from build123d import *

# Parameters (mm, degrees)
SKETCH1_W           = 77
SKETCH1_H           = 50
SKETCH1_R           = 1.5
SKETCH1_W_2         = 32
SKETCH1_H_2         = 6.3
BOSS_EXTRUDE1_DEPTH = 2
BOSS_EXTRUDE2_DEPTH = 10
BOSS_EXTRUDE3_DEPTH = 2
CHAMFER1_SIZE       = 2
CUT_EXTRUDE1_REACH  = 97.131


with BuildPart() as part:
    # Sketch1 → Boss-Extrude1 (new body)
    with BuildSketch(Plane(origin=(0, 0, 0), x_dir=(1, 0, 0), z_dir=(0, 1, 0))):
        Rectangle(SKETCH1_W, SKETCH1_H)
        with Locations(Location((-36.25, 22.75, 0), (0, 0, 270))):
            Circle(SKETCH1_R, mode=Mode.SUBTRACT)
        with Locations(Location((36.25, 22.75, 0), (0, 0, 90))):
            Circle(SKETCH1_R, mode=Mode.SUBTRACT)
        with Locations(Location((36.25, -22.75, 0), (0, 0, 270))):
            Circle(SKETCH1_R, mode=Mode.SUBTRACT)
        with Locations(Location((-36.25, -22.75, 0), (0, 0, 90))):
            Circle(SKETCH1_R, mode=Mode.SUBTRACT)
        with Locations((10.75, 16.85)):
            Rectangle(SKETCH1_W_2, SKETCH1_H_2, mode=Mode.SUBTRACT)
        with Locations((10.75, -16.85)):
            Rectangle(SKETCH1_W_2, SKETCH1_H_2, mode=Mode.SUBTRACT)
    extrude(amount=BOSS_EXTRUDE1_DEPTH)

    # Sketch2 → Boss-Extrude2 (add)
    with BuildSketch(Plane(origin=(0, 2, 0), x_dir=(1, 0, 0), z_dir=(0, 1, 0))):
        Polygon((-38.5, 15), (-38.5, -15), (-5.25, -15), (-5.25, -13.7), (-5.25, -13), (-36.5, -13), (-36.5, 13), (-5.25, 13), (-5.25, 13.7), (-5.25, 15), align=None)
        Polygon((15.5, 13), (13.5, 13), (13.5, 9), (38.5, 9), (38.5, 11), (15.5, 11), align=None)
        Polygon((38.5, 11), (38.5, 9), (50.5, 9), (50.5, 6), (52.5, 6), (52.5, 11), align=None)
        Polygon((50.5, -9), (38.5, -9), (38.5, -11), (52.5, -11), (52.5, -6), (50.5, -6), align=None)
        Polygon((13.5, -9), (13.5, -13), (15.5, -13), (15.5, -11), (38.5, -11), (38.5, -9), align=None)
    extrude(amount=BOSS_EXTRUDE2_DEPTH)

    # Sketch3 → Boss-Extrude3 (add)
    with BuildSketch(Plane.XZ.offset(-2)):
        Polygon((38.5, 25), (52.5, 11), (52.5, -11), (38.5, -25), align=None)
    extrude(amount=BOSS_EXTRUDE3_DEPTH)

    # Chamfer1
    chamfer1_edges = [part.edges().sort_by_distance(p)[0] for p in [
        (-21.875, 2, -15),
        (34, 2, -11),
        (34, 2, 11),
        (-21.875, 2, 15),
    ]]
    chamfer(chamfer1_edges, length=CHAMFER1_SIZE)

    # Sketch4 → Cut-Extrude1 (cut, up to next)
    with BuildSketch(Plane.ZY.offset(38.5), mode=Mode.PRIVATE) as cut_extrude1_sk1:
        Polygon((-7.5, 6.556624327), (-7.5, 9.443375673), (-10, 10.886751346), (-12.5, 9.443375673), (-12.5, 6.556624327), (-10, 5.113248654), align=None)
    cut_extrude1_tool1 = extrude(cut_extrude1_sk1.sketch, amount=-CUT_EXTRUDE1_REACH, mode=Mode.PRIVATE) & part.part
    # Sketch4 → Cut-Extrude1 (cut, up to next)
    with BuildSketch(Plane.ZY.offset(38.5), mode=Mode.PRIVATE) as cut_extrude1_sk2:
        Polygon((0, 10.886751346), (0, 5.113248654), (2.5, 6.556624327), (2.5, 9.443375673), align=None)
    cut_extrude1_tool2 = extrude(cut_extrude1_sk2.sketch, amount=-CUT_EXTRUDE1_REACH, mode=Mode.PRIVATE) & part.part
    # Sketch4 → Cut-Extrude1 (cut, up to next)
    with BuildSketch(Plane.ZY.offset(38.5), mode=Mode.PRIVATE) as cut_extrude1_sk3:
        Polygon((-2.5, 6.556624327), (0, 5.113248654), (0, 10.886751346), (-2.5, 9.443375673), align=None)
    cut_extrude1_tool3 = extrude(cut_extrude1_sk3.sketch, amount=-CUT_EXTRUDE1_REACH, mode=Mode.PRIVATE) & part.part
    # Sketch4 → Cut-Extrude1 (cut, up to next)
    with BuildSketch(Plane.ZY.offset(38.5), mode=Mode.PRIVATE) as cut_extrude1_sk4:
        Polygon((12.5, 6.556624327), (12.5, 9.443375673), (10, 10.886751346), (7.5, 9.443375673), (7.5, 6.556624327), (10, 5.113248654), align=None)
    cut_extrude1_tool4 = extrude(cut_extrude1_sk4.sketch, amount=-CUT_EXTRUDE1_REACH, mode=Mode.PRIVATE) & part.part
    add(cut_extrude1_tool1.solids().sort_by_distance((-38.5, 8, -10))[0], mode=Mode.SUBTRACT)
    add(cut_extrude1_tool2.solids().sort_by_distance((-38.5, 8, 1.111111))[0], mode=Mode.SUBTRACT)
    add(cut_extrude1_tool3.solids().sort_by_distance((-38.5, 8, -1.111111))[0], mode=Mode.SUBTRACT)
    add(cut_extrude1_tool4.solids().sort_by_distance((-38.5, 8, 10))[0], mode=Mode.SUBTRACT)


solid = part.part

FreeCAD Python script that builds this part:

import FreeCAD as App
import Part
import Sketcher
from FreeCAD import Vector
Q = App.Units.Quantity


def edges_at(feature, points):
    """Names of the edges that pass closest to the given points."""
    edges = feature.Shape.Edges
    near = lambda p: min(range(len(edges)), key=lambda i: edges[i].distToShape(Part.Vertex(*p))[0])
    return sorted({f"Edge{near(p) + 1}" for p in points})

doc = App.newDocument("Part")
body = doc.addObject("PartDesign::Body", "Body")

sketch1 = body.newObject("Sketcher::SketchObject", "Sketch")
sketch1.AttachmentSupport = (doc.getObject("XZ_Plane"), [""])
sketch1.MapMode = "FlatFace"
sketch1.addGeometry(Part.LineSegment(Vector(-38.5, -25, 0), Vector(-38.5, 25, 0)), False)
sketch1.addGeometry(Part.LineSegment(Vector(-38.5, 25, 0), Vector(38.5, 25, 0)), False)
sketch1.addGeometry(Part.LineSegment(Vector(38.5, 25, 0), Vector(38.5, -25, 0)), False)
sketch1.addGeometry(Part.LineSegment(Vector(38.5, -25, 0), Vector(-38.5, -25, 0)), False)
sketch1.addGeometry(Part.Circle(Vector(-36.2, 22.8, 0), Vector(0, 0, 1), 1.5), False)
sketch1.addGeometry(Part.LineSegment(Vector(26.8, 20, 0), Vector(-5.2, 20, 0)), False)
sketch1.addGeometry(Part.LineSegment(Vector(-5.2, 20, 0), Vector(-5.2, 13.7, 0)), False)
sketch1.addGeometry(Part.LineSegment(Vector(-5.2, 13.7, 0), Vector(26.8, 13.7, 0)), False)
sketch1.addGeometry(Part.LineSegment(Vector(26.8, 13.7, 0), Vector(26.8, 20, 0)), False)
sketch1.addGeometry(Part.Circle(Vector(36.2, 22.8, 0), Vector(0, 0, 1), 1.5), False)
sketch1.addGeometry(Part.Circle(Vector(-36.2, -22.8, 0), Vector(0, 0, 1), 1.5), False)
sketch1.addGeometry(Part.LineSegment(Vector(26.8, -13.7, 0), Vector(-5.2, -13.7, 0)), False)
sketch1.addGeometry(Part.LineSegment(Vector(-5.2, -13.7, 0), Vector(-5.2, -20, 0)), False)
sketch1.addGeometry(Part.LineSegment(Vector(-5.2, -20, 0), Vector(26.8, -20, 0)), False)
sketch1.addGeometry(Part.LineSegment(Vector(26.8, -20, 0), Vector(26.8, -13.7, 0)), False)
sketch1.addGeometry(Part.Circle(Vector(36.2, -22.8, 0), Vector(0, 0, 1), 1.5), False)
sketch1.addConstraint(Sketcher.Constraint("Coincident", 0, 2, 1, 1))
sketch1.addConstraint(Sketcher.Constraint("Coincident", 1, 2, 2, 1))
sketch1.addConstraint(Sketcher.Constraint("Coincident", 2, 2, 3, 1))
sketch1.addConstraint(Sketcher.Constraint("Coincident", 3, 2, 0, 1))
sketch1.addConstraint(Sketcher.Constraint("Coincident", 5, 2, 6, 1))
sketch1.addConstraint(Sketcher.Constraint("Coincident", 6, 2, 7, 1))
sketch1.addConstraint(Sketcher.Constraint("Coincident", 7, 2, 8, 1))
sketch1.addConstraint(Sketcher.Constraint("Coincident", 8, 2, 5, 1))
sketch1.addConstraint(Sketcher.Constraint("Coincident", 11, 2, 12, 1))
sketch1.addConstraint(Sketcher.Constraint("Coincident", 12, 2, 13, 1))
sketch1.addConstraint(Sketcher.Constraint("Coincident", 13, 2, 14, 1))
sketch1.addConstraint(Sketcher.Constraint("Coincident", 14, 2, 11, 1))
sketch1.addConstraint(Sketcher.Constraint("Vertical", 0))
sketch1.addConstraint(Sketcher.Constraint("Horizontal", 1))
sketch1.addConstraint(Sketcher.Constraint("Vertical", 2))
sketch1.addConstraint(Sketcher.Constraint("Horizontal", 3))
sketch1.addConstraint(Sketcher.Constraint("Horizontal", 5))
sketch1.addConstraint(Sketcher.Constraint("Vertical", 6))
sketch1.addConstraint(Sketcher.Constraint("Horizontal", 7))
sketch1.addConstraint(Sketcher.Constraint("Vertical", 8))
sketch1.addConstraint(Sketcher.Constraint("Horizontal", 11))
sketch1.addConstraint(Sketcher.Constraint("Vertical", 12))
sketch1.addConstraint(Sketcher.Constraint("Horizontal", 13))
sketch1.addConstraint(Sketcher.Constraint("Vertical", 14))
sketch1.addConstraint(Sketcher.Constraint("Equal", 4, 9))
sketch1.addConstraint(Sketcher.Constraint("Equal", 9, 10))
sketch1.addConstraint(Sketcher.Constraint("Equal", 10, 15))
sketch1.addConstraint(Sketcher.Constraint("Symmetric", 9, 3, 10, 3, -1, 1))
sketch1.addConstraint(Sketcher.Constraint("Symmetric", 4, 3, 15, 3, -1, 1))
sketch1.addConstraint(Sketcher.Constraint("Symmetric", 0, 2, 2, 2, -1, 1))
sketch1.addConstraint(Sketcher.Constraint("Symmetric", 4, 3, 9, 3, -2))
sketch1.addConstraint(Sketcher.Constraint("Symmetric", 6, 2, 11, 2, -1))
sketch1.addConstraint(Sketcher.Constraint("Symmetric", 8, 2, 13, 2, -1))
sketch1.addConstraint(Sketcher.Constraint("Diameter", 4, Q("3 mm")))
sketch1.addConstraint(Sketcher.Constraint("DistanceX", 1, 1, 1, 2, Q("77 mm")))
sketch1.addConstraint(Sketcher.Constraint("DistanceX", 5, 2, 5, 1, Q("32 mm")))
sketch1.addConstraint(Sketcher.Constraint("DistanceY", 0, 1, 0, 2, Q("50 mm")))
sketch1.addConstraint(Sketcher.Constraint("DistanceY", 6, 2, 6, 1, Q("6.3 mm")))
sketch1.addConstraint(Sketcher.Constraint("DistanceY", -1, 1, 5, 2, Q("20 mm")))
sketch1.addConstraint(Sketcher.Constraint("DistanceX", 4, 3, 5, 2, Q("31 mm")))
sketch1.addConstraint(Sketcher.Constraint("DistanceX", 4, 3, 9, 3, Q("72.5 mm")))
sketch1.addConstraint(Sketcher.Constraint("DistanceY", 10, 3, 4, 3, Q("45.5 mm")))
pad1 = body.newObject("PartDesign::Pad", "Pad")
pad1.Profile = sketch1
pad1.Length = 2
pad1.Reversed = True

sketch2 = body.newObject("Sketcher::SketchObject", "Sketch001")
sketch2.AttachmentSupport = (doc.getObject("XZ_Plane"), [""])
sketch2.MapMode = "FlatFace"
sketch2.AttachmentOffset = App.Placement(Vector(0, 0, -2), App.Rotation())
sketch2.addGeometry(Part.LineSegment(Vector(-38.5, -15, 0), Vector(-38.5, 15, 0)), False)
sketch2.addGeometry(Part.LineSegment(Vector(-38.5, 15, 0), Vector(-5.2, 15, 0)), False)
sketch2.addGeometry(Part.LineSegment(Vector(-5.2, 15, 0), Vector(-5.2, 13, 0)), False)
sketch2.addGeometry(Part.LineSegment(Vector(-5.2, 13, 0), Vector(-36.5, 13, 0)), False)
sketch2.addGeometry(Part.LineSegment(Vector(-36.5, 13, 0), Vector(-36.5, -13, 0)), False)
sketch2.addGeometry(Part.LineSegment(Vector(-36.5, -13, 0), Vector(-5.2, -13, 0)), False)
sketch2.addGeometry(Part.LineSegment(Vector(-5.2, -13, 0), Vector(-5.2, -15, 0)), False)
sketch2.addGeometry(Part.LineSegment(Vector(-5.2, -15, 0), Vector(-38.5, -15, 0)), False)
sketch2.addGeometry(Part.LineSegment(Vector(15.5, -13, 0), Vector(13.5, -13, 0)), False)
sketch2.addGeometry(Part.LineSegment(Vector(13.5, -13, 0), Vector(13.5, -9, 0)), False)
sketch2.addGeometry(Part.LineSegment(Vector(13.5, -9, 0), Vector(50.5, -9, 0)), False)
sketch2.addGeometry(Part.LineSegment(Vector(50.5, -9, 0), Vector(50.5, -6, 0)), False)
sketch2.addGeometry(Part.LineSegment(Vector(50.5, -6, 0), Vector(52.5, -6, 0)), False)
sketch2.addGeometry(Part.LineSegment(Vector(52.5, -6, 0), Vector(52.5, -11, 0)), False)
sketch2.addGeometry(Part.LineSegment(Vector(52.5, -11, 0), Vector(15.5, -11, 0)), False)
sketch2.addGeometry(Part.LineSegment(Vector(15.5, -11, 0), Vector(15.5, -13, 0)), False)
sketch2.addGeometry(Part.LineSegment(Vector(50.5, 9, 0), Vector(13.5, 9, 0)), False)
sketch2.addGeometry(Part.LineSegment(Vector(13.5, 9, 0), Vector(13.5, 13, 0)), False)
sketch2.addGeometry(Part.LineSegment(Vector(13.5, 13, 0), Vector(15.5, 13, 0)), False)
sketch2.addGeometry(Part.LineSegment(Vector(15.5, 13, 0), Vector(15.5, 11, 0)), False)
sketch2.addGeometry(Part.LineSegment(Vector(15.5, 11, 0), Vector(52.5, 11, 0)), False)
sketch2.addGeometry(Part.LineSegment(Vector(52.5, 11, 0), Vector(52.5, 6, 0)), False)
sketch2.addGeometry(Part.LineSegment(Vector(52.5, 6, 0), Vector(50.5, 6, 0)), False)
sketch2.addGeometry(Part.LineSegment(Vector(50.5, 6, 0), Vector(50.5, 9, 0)), False)
sketch2.addConstraint(Sketcher.Constraint("Coincident", 0, 2, 1, 1))
sketch2.addConstraint(Sketcher.Constraint("Coincident", 1, 2, 2, 1))
sketch2.addConstraint(Sketcher.Constraint("Coincident", 2, 2, 3, 1))
sketch2.addConstraint(Sketcher.Constraint("Coincident", 3, 2, 4, 1))
sketch2.addConstraint(Sketcher.Constraint("Coincident", 4, 2, 5, 1))
sketch2.addConstraint(Sketcher.Constraint("Coincident", 5, 2, 6, 1))
sketch2.addConstraint(Sketcher.Constraint("Coincident", 6, 2, 7, 1))
sketch2.addConstraint(Sketcher.Constraint("Coincident", 7, 2, 0, 1))
sketch2.addConstraint(Sketcher.Constraint("Coincident", 8, 2, 9, 1))
sketch2.addConstraint(Sketcher.Constraint("Coincident", 9, 2, 10, 1))
sketch2.addConstraint(Sketcher.Constraint("Coincident", 10, 2, 11, 1))
sketch2.addConstraint(Sketcher.Constraint("Coincident", 11, 2, 12, 1))
sketch2.addConstraint(Sketcher.Constraint("Coincident", 12, 2, 13, 1))
sketch2.addConstraint(Sketcher.Constraint("Coincident", 13, 2, 14, 1))
sketch2.addConstraint(Sketcher.Constraint("Coincident", 14, 2, 15, 1))
sketch2.addConstraint(Sketcher.Constraint("Coincident", 15, 2, 8, 1))
sketch2.addConstraint(Sketcher.Constraint("Coincident", 16, 2, 17, 1))
sketch2.addConstraint(Sketcher.Constraint("Coincident", 17, 2, 18, 1))
sketch2.addConstraint(Sketcher.Constraint("Coincident", 18, 2, 19, 1))
sketch2.addConstraint(Sketcher.Constraint("Coincident", 19, 2, 20, 1))
sketch2.addConstraint(Sketcher.Constraint("Coincident", 20, 2, 21, 1))
sketch2.addConstraint(Sketcher.Constraint("Coincident", 21, 2, 22, 1))
sketch2.addConstraint(Sketcher.Constraint("Coincident", 22, 2, 23, 1))
sketch2.addConstraint(Sketcher.Constraint("Coincident", 23, 2, 16, 1))
sketch2.addConstraint(Sketcher.Constraint("Vertical", 0))
sketch2.addConstraint(Sketcher.Constraint("Horizontal", 1))
sketch2.addConstraint(Sketcher.Constraint("Vertical", 2))
sketch2.addConstraint(Sketcher.Constraint("Horizontal", 3))
sketch2.addConstraint(Sketcher.Constraint("Vertical", 4))
sketch2.addConstraint(Sketcher.Constraint("Horizontal", 5))
sketch2.addConstraint(Sketcher.Constraint("Vertical", 6))
sketch2.addConstraint(Sketcher.Constraint("Horizontal", 7))
sketch2.addConstraint(Sketcher.Constraint("Horizontal", 8))
sketch2.addConstraint(Sketcher.Constraint("Vertical", 9))
sketch2.addConstraint(Sketcher.Constraint("Horizontal", 10))
sketch2.addConstraint(Sketcher.Constraint("Vertical", 11))
sketch2.addConstraint(Sketcher.Constraint("Horizontal", 12))
sketch2.addConstraint(Sketcher.Constraint("Vertical", 13))
sketch2.addConstraint(Sketcher.Constraint("Horizontal", 14))
sketch2.addConstraint(Sketcher.Constraint("Vertical", 15))
sketch2.addConstraint(Sketcher.Constraint("Horizontal", 16))
sketch2.addConstraint(Sketcher.Constraint("Vertical", 17))
sketch2.addConstraint(Sketcher.Constraint("Horizontal", 18))
sketch2.addConstraint(Sketcher.Constraint("Vertical", 19))
sketch2.addConstraint(Sketcher.Constraint("Horizontal", 20))
sketch2.addConstraint(Sketcher.Constraint("Vertical", 21))
sketch2.addConstraint(Sketcher.Constraint("Horizontal", 22))
sketch2.addConstraint(Sketcher.Constraint("Vertical", 23))
sketch2.addConstraint(Sketcher.Constraint("Symmetric", 2, 2, 5, 2, -1))
sketch2.addConstraint(Sketcher.Constraint("Symmetric", 9, 2, 16, 2, -1))
sketch2.addConstraint(Sketcher.Constraint("Symmetric", 15, 2, 18, 2, -1))
sketch2.addConstraint(Sketcher.Constraint("Symmetric", 13, 2, 20, 2, -1))
sketch2.addConstraint(Sketcher.Constraint("Symmetric", 11, 2, 22, 2, -1))
sketch2.addConstraint(Sketcher.Constraint("Horizontal", 5, 2, 8, 2))
sketch2.addConstraint(Sketcher.Constraint("Equal", 8, 12))
sketch2.addConstraint(Sketcher.Constraint("Equal", 22, 2))
sketch2.addConstraint(Sketcher.Constraint("Equal", 2, 6))
sketch2.addConstraint(Sketcher.Constraint("Equal", 6, 15))
sketch2.addConstraint(Sketcher.Constraint("DistanceX", 8, 2, 8, 1, Q("2 mm")))
sketch2.addConstraint(Sketcher.Constraint("DistanceX", 10, 1, 10, 2, Q("37 mm")))
sketch2.addConstraint(Sketcher.Constraint("DistanceY", 0, 1, 0, 2, Q("30 mm")))
sketch2.addConstraint(Sketcher.Constraint("DistanceY", 9, 1, 9, 2, Q("4 mm")))
sketch2.addConstraint(Sketcher.Constraint("DistanceY", 11, 1, 11, 2, Q("3 mm")))
sketch2.addConstraint(Sketcher.Constraint("DistanceX", 0, 2, 3, 2, Q("2 mm")))
sketch2.addConstraint(Sketcher.Constraint("DistanceX", 4, 2, 8, 2, Q("50 mm")))
sketch2.addConstraint(Sketcher.Constraint("DistanceX", 1, 1, 1, 2, Q("33.25 mm")))
sketch2.addConstraint(Sketcher.Constraint("DistanceX", 0, 2, -1, 1, Q("38.5 mm")))
pad2 = body.newObject("PartDesign::Pad", "Pad001")
pad2.Profile = sketch2
pad2.Length = 10
pad2.Reversed = True

sketch3 = body.newObject("Sketcher::SketchObject", "Sketch002")
sketch3.AttachmentSupport = (doc.getObject("XZ_Plane"), [""])
sketch3.MapMode = "FlatFace"
sketch3.AttachmentOffset = App.Placement(Vector(0, 0, -2), App.Rotation())
sketch3.addGeometry(Part.LineSegment(Vector(52, 11, 0), Vector(38, 25, 0)), False)
sketch3.addGeometry(Part.LineSegment(Vector(38, 25, 0), Vector(38, -25, 0)), False)
sketch3.addGeometry(Part.LineSegment(Vector(38, -25, 0), Vector(52, -11, 0)), False)
sketch3.addGeometry(Part.LineSegment(Vector(52, -11, 0), Vector(52, 11, 0)), False)
sketch3.addConstraint(Sketcher.Constraint("Coincident", 0, 2, 1, 1))
sketch3.addConstraint(Sketcher.Constraint("Coincident", 1, 2, 2, 1))
sketch3.addConstraint(Sketcher.Constraint("Coincident", 2, 2, 3, 1))
sketch3.addConstraint(Sketcher.Constraint("Coincident", 3, 2, 0, 1))
sketch3.addConstraint(Sketcher.Constraint("Vertical", 1))
sketch3.addConstraint(Sketcher.Constraint("Vertical", 3))
sketch3.addConstraint(Sketcher.Constraint("Perpendicular", 0, 2))
sketch3.addConstraint(Sketcher.Constraint("Equal", 0, 2))
sketch3.addConstraint(Sketcher.Constraint("DistanceY", 1, 2, 1, 1, Q("50 mm")))
sketch3.addConstraint(Sketcher.Constraint("DistanceY", 3, 1, 3, 2, Q("22 mm")))
sketch3.addConstraint(Sketcher.Constraint("DistanceY", -1, 1, 0, 2, Q("25 mm")))
sketch3.addConstraint(Sketcher.Constraint("DistanceX", -1, 1, 0, 2, Q("38.5 mm")))
pad3 = body.newObject("PartDesign::Pad", "Pad002")
pad3.Profile = sketch3
pad3.Length = 2
doc.recompute()

chamfer = body.newObject("PartDesign::Chamfer", "Chamfer")
chamfer.Base = (pad3, edges_at(pad3, [
    (-21.875, 2, -15),
    (34, 2, -11),
    (34, 2, 11),
    (-21.875, 2, 15),
]))
chamfer.Size = 2

sketch4 = body.newObject("Sketcher::SketchObject", "Sketch003")
sketch4.AttachmentSupport = (doc.getObject("YZ_Plane"), [""])
sketch4.MapMode = "FlatFace"
sketch4.AttachmentOffset = App.Placement(Vector(0, 0, -38.5), App.Rotation())
sketch4.addGeometry(Part.LineSegment(Vector(6.6, -7.5, 0), Vector(9.4, -7.5, 0)), False)
sketch4.addGeometry(Part.LineSegment(Vector(9.4, -7.5, 0), Vector(10.9, -10, 0)), False)
sketch4.addGeometry(Part.LineSegment(Vector(10.9, -10, 0), Vector(9.4, -12.5, 0)), False)
sketch4.addGeometry(Part.LineSegment(Vector(9.4, -12.5, 0), Vector(6.6, -12.5, 0)), False)
sketch4.addGeometry(Part.LineSegment(Vector(6.6, -12.5, 0), Vector(5.1, -10, 0)), False)
sketch4.addGeometry(Part.LineSegment(Vector(5.1, -10, 0), Vector(6.6, -7.5, 0)), False)
sketch4.addConstraint(Sketcher.Constraint("Coincident", 0, 2, 1, 1))
sketch4.addConstraint(Sketcher.Constraint("Coincident", 1, 2, 2, 1))
sketch4.addConstraint(Sketcher.Constraint("Coincident", 2, 2, 3, 1))
sketch4.addConstraint(Sketcher.Constraint("Coincident", 3, 2, 4, 1))
sketch4.addConstraint(Sketcher.Constraint("Coincident", 4, 2, 5, 1))
sketch4.addConstraint(Sketcher.Constraint("Coincident", 5, 2, 0, 1))
sketch4.addConstraint(Sketcher.Constraint("Horizontal", 0))
sketch4.addConstraint(Sketcher.Constraint("Horizontal", 3))
sketch4.addConstraint(Sketcher.Constraint("Parallel", 1, 4))
sketch4.addConstraint(Sketcher.Constraint("Parallel", 2, 5))
sketch4.addConstraint(Sketcher.Constraint("Horizontal", 1, 2, 4, 2))
sketch4.addConstraint(Sketcher.Constraint("Vertical", 0, 2, 2, 2))
sketch4.addConstraint(Sketcher.Constraint("Vertical", 3, 2, 5, 2))
sketch4.addConstraint(Sketcher.Constraint("Angle", 1, Q("-60 deg")))
sketch4.addConstraint(Sketcher.Constraint("DistanceY", 1, 2, -1, 1, Q("10 mm")))
sketch4.addConstraint(Sketcher.Constraint("DistanceY", 2, 2, 0, 2, Q("5 mm")))
sketch4.addConstraint(Sketcher.Constraint("DistanceX", 0, 1, 0, 2, Q("2.886751 mm")))
sketch4.addConstraint(Sketcher.Constraint("DistanceX", -1, 1, 1, 2, Q("10.886751 mm")))
pocket1 = body.newObject("PartDesign::Pocket", "Pocket")
pocket1.Profile = sketch4
pocket1.Type = "UpToFirst"
pocket1.Reversed = True

sketch5 = body.newObject("Sketcher::SketchObject", "Sketch004")
sketch5.AttachmentSupport = (doc.getObject("YZ_Plane"), [""])
sketch5.MapMode = "FlatFace"
sketch5.AttachmentOffset = App.Placement(Vector(0, 0, -38.5), App.Rotation())
sketch5.addGeometry(Part.LineSegment(Vector(10.9, 0, 0), Vector(5.1, 0, 0)), False)
sketch5.addGeometry(Part.LineSegment(Vector(5.1, 0, 0), Vector(6.6, 2.5, 0)), False)
sketch5.addGeometry(Part.LineSegment(Vector(6.6, 2.5, 0), Vector(9.4, 2.5, 0)), False)
sketch5.addGeometry(Part.LineSegment(Vector(9.4, 2.5, 0), Vector(10.9, 0, 0)), False)
sketch5.addConstraint(Sketcher.Constraint("Coincident", 0, 2, 1, 1))
sketch5.addConstraint(Sketcher.Constraint("Coincident", 1, 2, 2, 1))
sketch5.addConstraint(Sketcher.Constraint("Coincident", 2, 2, 3, 1))
sketch5.addConstraint(Sketcher.Constraint("Coincident", 3, 2, 0, 1))
sketch5.addConstraint(Sketcher.Constraint("Horizontal", 0))
sketch5.addConstraint(Sketcher.Constraint("Horizontal", 2))
sketch5.addConstraint(Sketcher.Constraint("PointOnObject", 0, 2, -1))
sketch5.addConstraint(Sketcher.Constraint("Equal", 1, 3))
sketch5.addConstraint(Sketcher.Constraint("Angle", 1, Q("60 deg")))
sketch5.addConstraint(Sketcher.Constraint("DistanceY", -1, 1, 1, 2, Q("2.5 mm")))
sketch5.addConstraint(Sketcher.Constraint("DistanceX", 2, 1, 2, 2, Q("2.886751 mm")))
sketch5.addConstraint(Sketcher.Constraint("DistanceX", -1, 1, 0, 2, Q("5.113249 mm")))
pocket2 = body.newObject("PartDesign::Pocket", "Pocket001")
pocket2.Profile = sketch5
pocket2.Type = "UpToFirst"
pocket2.Reversed = True

sketch6 = body.newObject("Sketcher::SketchObject", "Sketch005")
sketch6.AttachmentSupport = (doc.getObject("YZ_Plane"), [""])
sketch6.MapMode = "FlatFace"
sketch6.AttachmentOffset = App.Placement(Vector(0, 0, -38.5), App.Rotation())
sketch6.addGeometry(Part.LineSegment(Vector(6.6, -2.5, 0), Vector(5.1, 0, 0)), False)
sketch6.addGeometry(Part.LineSegment(Vector(5.1, 0, 0), Vector(10.9, 0, 0)), False)
sketch6.addGeometry(Part.LineSegment(Vector(10.9, 0, 0), Vector(9.4, -2.5, 0)), False)
sketch6.addGeometry(Part.LineSegment(Vector(9.4, -2.5, 0), Vector(6.6, -2.5, 0)), False)
sketch6.addConstraint(Sketcher.Constraint("Coincident", 0, 2, 1, 1))
sketch6.addConstraint(Sketcher.Constraint("Coincident", 1, 2, 2, 1))
sketch6.addConstraint(Sketcher.Constraint("Coincident", 2, 2, 3, 1))
sketch6.addConstraint(Sketcher.Constraint("Coincident", 3, 2, 0, 1))
sketch6.addConstraint(Sketcher.Constraint("Horizontal", 1))
sketch6.addConstraint(Sketcher.Constraint("Horizontal", 3))
sketch6.addConstraint(Sketcher.Constraint("PointOnObject", 0, 2, -1))
sketch6.addConstraint(Sketcher.Constraint("Equal", 0, 2))
sketch6.addConstraint(Sketcher.Constraint("Angle", 0, Q("120 deg")))
sketch6.addConstraint(Sketcher.Constraint("DistanceY", 2, 2, -1, 1, Q("2.5 mm")))
sketch6.addConstraint(Sketcher.Constraint("DistanceX", 3, 2, 3, 1, Q("2.886751 mm")))
sketch6.addConstraint(Sketcher.Constraint("DistanceX", -1, 1, 0, 2, Q("5.113249 mm")))
pocket3 = body.newObject("PartDesign::Pocket", "Pocket002")
pocket3.Profile = sketch6
pocket3.Type = "UpToFirst"
pocket3.Reversed = True

sketch7 = body.newObject("Sketcher::SketchObject", "Sketch006")
sketch7.AttachmentSupport = (doc.getObject("YZ_Plane"), [""])
sketch7.MapMode = "FlatFace"
sketch7.AttachmentOffset = App.Placement(Vector(0, 0, -38.5), App.Rotation())
sketch7.addGeometry(Part.LineSegment(Vector(6.6, 12.5, 0), Vector(9.4, 12.5, 0)), False)
sketch7.addGeometry(Part.LineSegment(Vector(9.4, 12.5, 0), Vector(10.9, 10, 0)), False)
sketch7.addGeometry(Part.LineSegment(Vector(10.9, 10, 0), Vector(9.4, 7.5, 0)), False)
sketch7.addGeometry(Part.LineSegment(Vector(9.4, 7.5, 0), Vector(6.6, 7.5, 0)), False)
sketch7.addGeometry(Part.LineSegment(Vector(6.6, 7.5, 0), Vector(5.1, 10, 0)), False)
sketch7.addGeometry(Part.LineSegment(Vector(5.1, 10, 0), Vector(6.6, 12.5, 0)), False)
sketch7.addConstraint(Sketcher.Constraint("Coincident", 0, 2, 1, 1))
sketch7.addConstraint(Sketcher.Constraint("Coincident", 1, 2, 2, 1))
sketch7.addConstraint(Sketcher.Constraint("Coincident", 2, 2, 3, 1))
sketch7.addConstraint(Sketcher.Constraint("Coincident", 3, 2, 4, 1))
sketch7.addConstraint(Sketcher.Constraint("Coincident", 4, 2, 5, 1))
sketch7.addConstraint(Sketcher.Constraint("Coincident", 5, 2, 0, 1))
sketch7.addConstraint(Sketcher.Constraint("Horizontal", 0))
sketch7.addConstraint(Sketcher.Constraint("Horizontal", 3))
sketch7.addConstraint(Sketcher.Constraint("Parallel", 1, 4))
sketch7.addConstraint(Sketcher.Constraint("Parallel", 2, 5))
sketch7.addConstraint(Sketcher.Constraint("Horizontal", 1, 2, 4, 2))
sketch7.addConstraint(Sketcher.Constraint("Vertical", 0, 2, 2, 2))
sketch7.addConstraint(Sketcher.Constraint("Vertical", 3, 2, 5, 2))
sketch7.addConstraint(Sketcher.Constraint("Angle", 1, Q("-60 deg")))
sketch7.addConstraint(Sketcher.Constraint("DistanceY", -1, 1, 1, 2, Q("10 mm")))
sketch7.addConstraint(Sketcher.Constraint("DistanceY", 2, 2, 0, 2, Q("5 mm")))
sketch7.addConstraint(Sketcher.Constraint("DistanceX", 0, 1, 0, 2, Q("2.886751 mm")))
sketch7.addConstraint(Sketcher.Constraint("DistanceX", -1, 1, 1, 2, Q("10.886751 mm")))
pocket4 = body.newObject("PartDesign::Pocket", "Pocket003")
pocket4.Profile = sketch7
pocket4.Type = "UpToFirst"
pocket4.Reversed = True

doc.recompute()
